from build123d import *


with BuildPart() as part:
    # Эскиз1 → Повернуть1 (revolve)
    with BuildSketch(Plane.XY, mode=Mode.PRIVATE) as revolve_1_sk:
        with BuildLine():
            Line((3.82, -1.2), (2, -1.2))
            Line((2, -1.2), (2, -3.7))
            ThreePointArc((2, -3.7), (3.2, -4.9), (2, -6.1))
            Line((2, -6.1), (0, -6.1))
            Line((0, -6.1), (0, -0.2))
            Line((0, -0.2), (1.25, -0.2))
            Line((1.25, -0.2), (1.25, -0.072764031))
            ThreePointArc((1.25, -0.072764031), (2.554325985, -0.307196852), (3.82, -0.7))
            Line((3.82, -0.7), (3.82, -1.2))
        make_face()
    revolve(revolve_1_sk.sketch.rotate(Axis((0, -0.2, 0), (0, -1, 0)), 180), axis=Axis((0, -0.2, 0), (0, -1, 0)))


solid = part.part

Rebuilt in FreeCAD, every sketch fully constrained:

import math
import FreeCAD as App
import Part
import Sketcher

V = App.Vector

doc = App.newDocument("Part")
body = doc.addObject("PartDesign::Body", "Body")

# Sketch on XY plane
sketch1 = body.newObject("Sketcher::SketchObject", "Sketch")
sketch1.AttachmentSupport = (doc.getObject("XY_Plane"), [""])
sketch1.MapMode = "FlatFace"
sketch1.addGeometry([
    Part.LineSegment(V(2, -1.2, 0), V(3.82, -1.2, 0)),  # 0
    Part.LineSegment(V(3.82, -1.2, 0), V(3.82, -0.7, 0)),  # 1
    Part.ArcOfCircle(Part.Circle(V(0, -10.773143, 0), V(0, 0, 1), 10.773143), math.radians(69.231959), math.radians(83.337004)),  # 2
    Part.LineSegment(V(1.25, -0.072764, 0), V(1.25, -0.2, 0)),  # 3
    Part.LineSegment(V(1.25, -0.2, 0), V(0, -0.2, 0)),  # 4
    Part.LineSegment(V(0, -0.2, 0), V(0, -6.1, 0)),  # 5
    Part.LineSegment(V(0, -6.1, 0), V(2, -6.1, 0)),  # 6
    Part.ArcOfCircle(Part.Circle(V(2, -4.9, 0), V(0, 0, 1), 1.2), math.radians(-90), math.radians(90)),  # 7
    Part.LineSegment(V(2, -3.7, 0), V(2, -1.2, 0)),  # 8
], False)
sketch1.addConstraint([
    Sketcher.Constraint("Coincident", 0, 2, 1, 1),
    Sketcher.Constraint("Coincident", 1, 2, 2, 1),
    Sketcher.Constraint("Coincident", 2, 2, 3, 1),
    Sketcher.Constraint("Coincident", 3, 2, 4, 1),
    Sketcher.Constraint("Coincident", 4, 2, 5, 1),
    Sketcher.Constraint("Coincident", 5, 2, 6, 1),
    Sketcher.Constraint("Tangent", 6, 2, 7, 1),
    Sketcher.Constraint("Coincident", 7, 2, 8, 1),
    Sketcher.Constraint("Coincident", 8, 2, 0, 1),
    Sketcher.Constraint("Horizontal", 0),
    Sketcher.Constraint("Vertical", 1),
    Sketcher.Constraint("Vertical", 3),
    Sketcher.Constraint("Horizontal", 4),
    Sketcher.Constraint("Vertical", 5),
    Sketcher.Constraint("Horizontal", 6),
    Sketcher.Constraint("Vertical", 8),
    Sketcher.Constraint("PointOnObject", 2, 3, -2),
    Sketcher.Constraint("PointOnObject", 4, 2, -2),
    Sketcher.Constraint("Vertical", 6, 2, 7, 2),
    Sketcher.Constraint("Radius", 7, 1.2),
    Sketcher.Constraint("DistanceX", 6, 1, 6, 2, 2.0),
    Sketcher.Constraint("DistanceY", 1, 1, 1, 2, 0.5),
    Sketcher.Constraint("DistanceY", 5, 2, 5, 1, 5.9),
    Sketcher.Constraint("DistanceY", 8, 1, 8, 2, 2.5),
    Sketcher.Constraint("DistanceX", 0, 1, 0, 2, 1.82),
    Sketcher.Constraint("DistanceX", 4, 2, 4, 1, 1.25),
    Sketcher.Constraint("DistanceY", 7, 3, -1, 1, 4.9),
    Sketcher.Constraint("Radius", 2, 10.773143),
])
revolution = body.newObject("PartDesign::Revolution", "Revolution")
revolution.Profile = sketch1
revolution.ReferenceAxis = (sketch1, ["V_Axis"])
revolution.Angle = 360

doc.recompute()
